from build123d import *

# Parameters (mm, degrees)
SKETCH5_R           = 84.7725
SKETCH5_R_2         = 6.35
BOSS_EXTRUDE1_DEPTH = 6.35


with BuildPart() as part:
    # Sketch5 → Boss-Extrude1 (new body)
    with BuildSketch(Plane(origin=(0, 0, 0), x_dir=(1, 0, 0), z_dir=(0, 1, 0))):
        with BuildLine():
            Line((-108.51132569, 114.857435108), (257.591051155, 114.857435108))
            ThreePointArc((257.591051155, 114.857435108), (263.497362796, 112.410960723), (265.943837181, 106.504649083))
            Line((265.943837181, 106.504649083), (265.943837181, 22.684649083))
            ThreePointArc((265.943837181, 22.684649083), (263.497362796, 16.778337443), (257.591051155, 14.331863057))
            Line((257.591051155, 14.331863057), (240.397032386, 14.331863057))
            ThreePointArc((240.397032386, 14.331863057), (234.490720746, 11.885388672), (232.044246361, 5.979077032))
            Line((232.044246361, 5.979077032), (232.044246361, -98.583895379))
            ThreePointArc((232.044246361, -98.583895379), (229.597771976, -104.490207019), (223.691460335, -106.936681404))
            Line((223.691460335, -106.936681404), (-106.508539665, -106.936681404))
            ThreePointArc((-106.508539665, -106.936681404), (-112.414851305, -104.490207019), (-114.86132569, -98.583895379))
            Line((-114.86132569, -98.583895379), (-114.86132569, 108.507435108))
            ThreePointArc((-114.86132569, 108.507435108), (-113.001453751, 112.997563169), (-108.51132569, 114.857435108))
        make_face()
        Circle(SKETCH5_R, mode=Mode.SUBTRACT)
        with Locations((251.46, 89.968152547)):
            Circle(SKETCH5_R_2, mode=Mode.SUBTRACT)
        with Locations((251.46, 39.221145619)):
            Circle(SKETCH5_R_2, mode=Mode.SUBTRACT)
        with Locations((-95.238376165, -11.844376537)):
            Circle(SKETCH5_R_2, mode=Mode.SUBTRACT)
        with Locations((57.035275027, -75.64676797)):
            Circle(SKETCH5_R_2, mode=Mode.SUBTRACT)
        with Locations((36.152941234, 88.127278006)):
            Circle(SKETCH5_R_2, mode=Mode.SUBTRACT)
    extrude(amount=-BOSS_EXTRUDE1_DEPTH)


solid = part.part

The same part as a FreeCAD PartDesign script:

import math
import FreeCAD as App
import Part
import Sketcher
Q = App.Units.Quantity

doc = App.newDocument("Part")
params = doc.addObject("Spreadsheet::Sheet", "Params")
for row, (alias, value) in enumerate([
    ("sketch1_diameter", "0.5 in"),
    ("sketch1_width", "13 in"),
    ("sketch1_diameter2", "6.675 in"),
    ("sketch1_height", "3.3 in"),
    ("pad1_length", "0.25 in"),
], start=1):
    params.set(f"A{row}", alias)
    params.set(f"B{row}", "=" + value)
    params.setAlias(f"B{row}", alias)

body = doc.addObject("PartDesign::Body", "Body")

# Sketch on XZ plane
sketch1 = doc.addObject("Sketcher::SketchObject", "Sketch")
body.addObject(sketch1)
sketch1.AttachmentSupport = (doc.XZ_Plane, [""])
sketch1.MapMode = "FlatFace"
sketch1.addGeometry([
    Part.LineSegment(App.Vector(258, -115, 0), App.Vector(-109, -115, 0)),  # 0
    Part.ArcOfCircle(Part.Circle(App.Vector(-109, -109, 0), App.Vector(0, 0, 1), 6), math.radians(180), math.radians(270)),  # 1
    Part.LineSegment(App.Vector(-115, -109, 0), App.Vector(-115, 99, 0)),  # 2
    Part.ArcOfCircle(Part.Circle(App.Vector(-107, 99, 0), App.Vector(0, 0, 1), 8), math.radians(90), math.radians(180)),  # 3
    Part.LineSegment(App.Vector(-107, 107, 0), App.Vector(224, 107, 0)),  # 4
    Part.ArcOfCircle(Part.Circle(App.Vector(224, 99, 0), App.Vector(0, 0, 1), 8), math.radians(0), math.radians(90)),  # 5
    Part.LineSegment(App.Vector(232, 99, 0), App.Vector(232, -6, 0)),  # 6
    Part.ArcOfCircle(Part.Circle(App.Vector(240, -6, 0), App.Vector(0, 0, 1), 8), math.radians(180), math.radians(270)),  # 7
    Part.LineSegment(App.Vector(240, -14, 0), App.Vector(258, -14, 0)),  # 8
    Part.ArcOfCircle(Part.Circle(App.Vector(258, -23, 0), App.Vector(0, 0, 1), 8), math.radians(0), math.radians(90)),  # 9
    Part.LineSegment(App.Vector(266, -23, 0), App.Vector(266, -107, 0)),  # 10
    Part.ArcOfCircle(Part.Circle(App.Vector(258, -107, 0), App.Vector(0, 0, 1), 8), math.radians(-90), math.radians(0)),  # 11
    Part.Circle(App.Vector(57, 76, 0), App.Vector(0, 0, 1), 6),  # 12
    Part.Circle(App.Vector(0, 0, 0), App.Vector(0, 0, 1), 85),  # 13
    Part.Circle(App.Vector(-95, 12, 0), App.Vector(0, 0, 1), 6),  # 14
    Part.Circle(App.Vector(251, -39, 0), App.Vector(0, 0, 1), 6),  # 15
    Part.Circle(App.Vector(251, -90, 0), App.Vector(0, 0, 1), 6),  # 16
    Part.Circle(App.Vector(36, -88, 0), App.Vector(0, 0, 1), 6),  # 17
], False)
sketch1.addConstraint([
    Sketcher.Constraint("Tangent", 0, 2, 1, 2),
    Sketcher.Constraint("Tangent", 1, 1, 2, 1),
    Sketcher.Constraint("Tangent", 2, 2, 3, 2),
    Sketcher.Constraint("Tangent", 3, 1, 4, 1),
    Sketcher.Constraint("Tangent", 4, 2, 5, 2),
    Sketcher.Constraint("Tangent", 5, 1, 6, 1),
    Sketcher.Constraint("Tangent", 6, 2, 7, 1),
    Sketcher.Constraint("Tangent", 7, 2, 8, 1),
    Sketcher.Constraint("Tangent", 8, 2, 9, 2),
    Sketcher.Constraint("Tangent", 9, 1, 10, 1),
    Sketcher.Constraint("Tangent", 10, 2, 11, 2),
    Sketcher.Constraint("Tangent", 11, 1, 0, 1),
    Sketcher.Constraint("Horizontal", 0),
    Sketcher.Constraint("Vertical", 2),
    Sketcher.Constraint("Horizontal", 4),
    Sketcher.Constraint("Vertical", 6),
    Sketcher.Constraint("Horizontal", 8),
    Sketcher.Constraint("Vertical", 10),
    Sketcher.Constraint("Coincident", 13, 3, -1, 1),
    Sketcher.Constraint("Equal", 3, 5),
    Sketcher.Constraint("Equal", 5, 7),
    Sketcher.Constraint("Equal", 7, 9),
    Sketcher.Constraint("Equal", 9, 11),
    Sketcher.Constraint("Equal", 1, 12),
    Sketcher.Constraint("Equal", 12, 14),
    Sketcher.Constraint("Equal", 14, 15),
    Sketcher.Constraint("Equal", 15, 16),
    Sketcher.Constraint("Equal", 16, 17),
    Sketcher.Constraint("Vertical", 15, 3, 16, 3),
    Sketcher.Constraint("Diameter", 12, Q("0.5 in")),
    Sketcher.Constraint("DistanceX", 4, 1, 4, 2, Q("13 in")),
    Sketcher.Constraint("Diameter", 13, Q("6.675 in")),
    Sketcher.Constraint("DistanceY", 10, 2, 10, 1, Q("3.3 in")),
    Sketcher.Constraint("DistanceX", -1, 1, 15, 3, Q("9.9 in")),
    Sketcher.Constraint("Radius", 3, 8.352786),
    Sketcher.Constraint("DistanceX", 8, 1, 8, 2, 17.194019),
    Sketcher.Constraint("DistanceY", 2, 1, 2, 2, 207.09133),
    Sketcher.Constraint("DistanceX", 1, 3, 12, 3, 165.546601),
    Sketcher.Constraint("DistanceX", 3, 3, -1, 1, 106.50854),
    Sketcher.Constraint("DistanceY", 9, 3, -1, 1, 22.684649),
    Sketcher.Constraint("DistanceX", -1, 1, 17, 3, 36.152941),
    Sketcher.Constraint("DistanceY", 17, 3, -1, 1, 88.127278),
    Sketcher.Constraint("DistanceY", 14, 3, 3, 3, 86.739519),
    Sketcher.Constraint("DistanceX", 1, 3, 14, 3, 13.27295),
    Sketcher.Constraint("DistanceY", 14, 3, 12, 3, 63.802391),
    Sketcher.Constraint("DistanceY", 15, 3, 7, 3, 33.242069),
    Sketcher.Constraint("DistanceY", 16, 3, 7, 2, 75.636289),
])
sketch1.setExpression("Constraints[29]", "Params.sketch1_diameter")
sketch1.setExpression("Constraints[30]", "Params.sketch1_width")
sketch1.setExpression("Constraints[31]", "Params.sketch1_diameter2")
sketch1.setExpression("Constraints[32]", "Params.sketch1_height")
pad1 = doc.addObject("PartDesign::Pad", "Pad")
body.addObject(pad1)
pad1.Profile = sketch1
pad1.setExpression("Length", "Params.pad1_length")

doc.recompute()
